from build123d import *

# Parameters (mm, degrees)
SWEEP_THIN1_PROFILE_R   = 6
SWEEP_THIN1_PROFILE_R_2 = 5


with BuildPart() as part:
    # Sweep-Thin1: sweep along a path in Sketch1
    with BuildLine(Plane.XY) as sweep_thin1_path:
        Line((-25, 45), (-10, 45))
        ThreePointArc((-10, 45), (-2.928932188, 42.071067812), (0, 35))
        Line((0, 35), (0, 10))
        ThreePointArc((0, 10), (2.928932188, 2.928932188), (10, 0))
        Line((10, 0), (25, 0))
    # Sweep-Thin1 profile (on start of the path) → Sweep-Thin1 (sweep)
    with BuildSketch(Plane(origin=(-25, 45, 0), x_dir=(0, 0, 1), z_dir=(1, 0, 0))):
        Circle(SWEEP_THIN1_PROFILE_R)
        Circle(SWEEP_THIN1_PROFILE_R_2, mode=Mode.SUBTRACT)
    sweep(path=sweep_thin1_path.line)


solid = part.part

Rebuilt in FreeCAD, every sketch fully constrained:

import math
import FreeCAD as App
import Part
import Sketcher

doc = App.newDocument("Part")
body = doc.addObject("PartDesign::Body", "Body")

# Sketch on YZ plane
sketch1 = doc.addObject("Sketcher::SketchObject", "Sketch")
body.addObject(sketch1)
sketch1.AttachmentSupport = (doc.YZ_Plane, [""])
sketch1.MapMode = "FlatFace"
sketch1.AttachmentOffset = App.Placement(App.Vector(0, 0, -25), App.Rotation())
sketch1.addGeometry(Part.Circle(App.Vector(45, 0, 0), App.Vector(0, 0, 1), 6), False)
sketch1.addGeometry(Part.Circle(App.Vector(45, 0, 0), App.Vector(0, 0, 1), 5), False)
sketch1.addConstraint(Sketcher.Constraint("Coincident", 1, 3, 0, 3))
sketch1.addConstraint(Sketcher.Constraint("PointOnObject", 0, 3, -1))
sketch1.addConstraint(Sketcher.Constraint("Diameter", 0, 12.0))
sketch1.addConstraint(Sketcher.Constraint("Diameter", 1, 10.0))
sketch1.addConstraint(Sketcher.Constraint("DistanceX", -1, 1, 0, 3, 45.0))

# Sketch on XY plane
sketch2 = doc.addObject("Sketcher::SketchObject", "Sketch001")
body.addObject(sketch2)
sketch2.AttachmentSupport = (doc.XY_Plane, [""])
sketch2.MapMode = "FlatFace"
sketch2.addGeometry(Part.LineSegment(App.Vector(-25, 45, 0), App.Vector(-10, 45, 0)), False)
sketch2.addGeometry(Part.ArcOfCircle(Part.Circle(App.Vector(-10, 35, 0), App.Vector(0, 0, 1), 10), math.radians(0), math.radians(90)), False)
sketch2.addGeometry(Part.LineSegment(App.Vector(0, 35, 0), App.Vector(0, 10, 0)), False)
sketch2.addGeometry(Part.ArcOfCircle(Part.Circle(App.Vector(10, 10, 0), App.Vector(0, 0, 1), 10), math.radians(180), math.radians(270)), False)
sketch2.addGeometry(Part.LineSegment(App.Vector(10, 0, 0), App.Vector(25, 0, 0)), False)
sketch2.addConstraint(Sketcher.Constraint("Tangent", 0, 2, 1, 2))
sketch2.addConstraint(Sketcher.Constraint("Tangent", 1, 1, 2, 1))
sketch2.addConstraint(Sketcher.Constraint("Tangent", 2, 2, 3, 1))
sketch2.addConstraint(Sketcher.Constraint("Tangent", 3, 2, 4, 1))
sketch2.addConstraint(Sketcher.Constraint("Horizontal", 0))
sketch2.addConstraint(Sketcher.Constraint("Vertical", 2))
sketch2.addConstraint(Sketcher.Constraint("Horizontal", 4))
sketch2.addConstraint(Sketcher.Constraint("Equal", 1, 3))
sketch2.addConstraint(Sketcher.Constraint("PointOnObject", 1, 1, -2))
sketch2.addConstraint(Sketcher.Constraint("PointOnObject", 3, 2, -1))
sketch2.addConstraint(Sketcher.Constraint("Equal", 0, 4))
sketch2.addConstraint(Sketcher.Constraint("Radius", 1, 10.0))
sketch2.addConstraint(Sketcher.Constraint("DistanceX", 0, 1, 0, 2, 15.0))
sketch2.addConstraint(Sketcher.Constraint("DistanceY", 2, 2, 2, 1, 25.0))
doc.recompute()

additivepipe = doc.addObject("PartDesign::AdditivePipe", "AdditivePipe")
body.addObject(additivepipe)
additivepipe.Profile = sketch1
additivepipe.Spine = (sketch2, ["Edge1", "Edge2", "Edge3", "Edge4", "Edge5"])

doc.recompute()
